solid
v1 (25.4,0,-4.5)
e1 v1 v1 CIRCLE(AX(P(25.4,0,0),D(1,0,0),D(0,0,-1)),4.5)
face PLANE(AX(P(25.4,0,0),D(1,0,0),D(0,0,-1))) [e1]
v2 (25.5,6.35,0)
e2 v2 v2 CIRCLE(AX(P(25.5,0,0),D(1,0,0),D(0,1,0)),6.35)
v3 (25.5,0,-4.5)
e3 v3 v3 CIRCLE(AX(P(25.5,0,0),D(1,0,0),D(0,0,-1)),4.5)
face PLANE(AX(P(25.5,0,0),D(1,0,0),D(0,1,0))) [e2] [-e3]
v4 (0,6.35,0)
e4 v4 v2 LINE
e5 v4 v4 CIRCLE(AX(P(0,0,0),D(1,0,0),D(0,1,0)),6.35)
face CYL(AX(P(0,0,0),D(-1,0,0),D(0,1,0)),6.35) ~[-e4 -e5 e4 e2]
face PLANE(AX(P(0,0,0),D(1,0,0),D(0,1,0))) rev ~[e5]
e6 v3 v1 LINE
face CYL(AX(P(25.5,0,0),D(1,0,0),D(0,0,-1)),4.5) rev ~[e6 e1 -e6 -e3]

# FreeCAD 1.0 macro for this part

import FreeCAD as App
import Part
import Sketcher

doc = App.newDocument("Part")
body = doc.addObject("PartDesign::Body", "Body")

sketch1 = body.newObject("Sketcher::SketchObject", "Sketch")
sketch1.AttachmentSupport = (doc.getObject("YZ_Plane"), [""])
sketch1.MapMode = "FlatFace"
sketch1.addGeometry(Part.Circle(App.Vector(0, 0, 0), App.Vector(0, 0, 1), 6), False)
sketch1.addConstraint(Sketcher.Constraint("Coincident", 0, 3, -1, 1))
sketch1.addConstraint(Sketcher.Constraint("Diameter", 0, 12.7))
pad1 = body.newObject("PartDesign::Pad", "Pad")
pad1.Profile = sketch1
pad1.Length = 25.5

sketch2 = body.newObject("Sketcher::SketchObject", "Sketch001")
sketch2.AttachmentSupport = (doc.getObject("YZ_Plane"), [""])
sketch2.MapMode = "FlatFace"
sketch2.AttachmentOffset = App.Placement(App.Vector(0, 0, 25.5), App.Rotation())
sketch2.addGeometry(Part.Circle(App.Vector(0, 0, 0), App.Vector(0, 0, 1), 4.5), False)
sketch2.addConstraint(Sketcher.Constraint("Coincident", 0, 3, -1, 1))
sketch2.addConstraint(Sketcher.Constraint("Diameter", 0, 9.0))
pocket1 = body.newObject("PartDesign::Pocket", "Pocket")
pocket1.Profile = sketch2
pocket1.Length = 0.1

doc.recompute()
